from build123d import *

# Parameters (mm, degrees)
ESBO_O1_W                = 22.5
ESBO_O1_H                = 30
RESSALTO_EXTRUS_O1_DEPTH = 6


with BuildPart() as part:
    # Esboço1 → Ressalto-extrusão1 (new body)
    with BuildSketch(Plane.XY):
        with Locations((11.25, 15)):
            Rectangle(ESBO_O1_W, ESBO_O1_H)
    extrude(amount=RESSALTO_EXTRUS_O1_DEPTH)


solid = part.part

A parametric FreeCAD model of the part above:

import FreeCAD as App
import Part
import Sketcher

V = App.Vector
Q = App.Units.Quantity


def add_polygon(sketch, points):
    """Adds a closed chain of lines whose ends are joined by coincident constraints."""
    first, n = sketch.GeometryCount, len(points)
    for a, b in zip(points, points[1:] + points[:1]):
        sketch.addGeometry(Part.LineSegment(App.Vector(*a, 0), App.Vector(*b, 0)), False)
    for i in range(n):
        sketch.addConstraint(Sketcher.Constraint("Coincident", first + i, 2, first + (i + 1) % n, 1))

doc = App.newDocument("Part")
body = doc.addObject("PartDesign::Body", "Body")

sketch1 = body.newObject("Sketcher::SketchObject", "Sketch")
sketch1.AttachmentSupport = (doc.getObject("XY_Plane"), [""])
sketch1.MapMode = "FlatFace"
add_polygon(sketch1, [(0, 30), (0, 0), (22.5, 0), (22.5, 30)])
sketch1.addConstraint(Sketcher.Constraint("Vertical", 0))
sketch1.addConstraint(Sketcher.Constraint("Horizontal", 1))
sketch1.addConstraint(Sketcher.Constraint("Vertical", 2))
sketch1.addConstraint(Sketcher.Constraint("Horizontal", 3))
sketch1.addConstraint(Sketcher.Constraint("Coincident", 0, 2, -1, 1))
sketch1.addConstraint(Sketcher.Constraint("DistanceY", 0, 2, 0, 1, Q("30 mm")))
sketch1.addConstraint(Sketcher.Constraint("DistanceX", 1, 1, 1, 2, Q("22.5 mm")))
pad1 = body.newObject("PartDesign::Pad", "Pad")
pad1.Profile = sketch1
pad1.Length = 6

doc.recompute()
